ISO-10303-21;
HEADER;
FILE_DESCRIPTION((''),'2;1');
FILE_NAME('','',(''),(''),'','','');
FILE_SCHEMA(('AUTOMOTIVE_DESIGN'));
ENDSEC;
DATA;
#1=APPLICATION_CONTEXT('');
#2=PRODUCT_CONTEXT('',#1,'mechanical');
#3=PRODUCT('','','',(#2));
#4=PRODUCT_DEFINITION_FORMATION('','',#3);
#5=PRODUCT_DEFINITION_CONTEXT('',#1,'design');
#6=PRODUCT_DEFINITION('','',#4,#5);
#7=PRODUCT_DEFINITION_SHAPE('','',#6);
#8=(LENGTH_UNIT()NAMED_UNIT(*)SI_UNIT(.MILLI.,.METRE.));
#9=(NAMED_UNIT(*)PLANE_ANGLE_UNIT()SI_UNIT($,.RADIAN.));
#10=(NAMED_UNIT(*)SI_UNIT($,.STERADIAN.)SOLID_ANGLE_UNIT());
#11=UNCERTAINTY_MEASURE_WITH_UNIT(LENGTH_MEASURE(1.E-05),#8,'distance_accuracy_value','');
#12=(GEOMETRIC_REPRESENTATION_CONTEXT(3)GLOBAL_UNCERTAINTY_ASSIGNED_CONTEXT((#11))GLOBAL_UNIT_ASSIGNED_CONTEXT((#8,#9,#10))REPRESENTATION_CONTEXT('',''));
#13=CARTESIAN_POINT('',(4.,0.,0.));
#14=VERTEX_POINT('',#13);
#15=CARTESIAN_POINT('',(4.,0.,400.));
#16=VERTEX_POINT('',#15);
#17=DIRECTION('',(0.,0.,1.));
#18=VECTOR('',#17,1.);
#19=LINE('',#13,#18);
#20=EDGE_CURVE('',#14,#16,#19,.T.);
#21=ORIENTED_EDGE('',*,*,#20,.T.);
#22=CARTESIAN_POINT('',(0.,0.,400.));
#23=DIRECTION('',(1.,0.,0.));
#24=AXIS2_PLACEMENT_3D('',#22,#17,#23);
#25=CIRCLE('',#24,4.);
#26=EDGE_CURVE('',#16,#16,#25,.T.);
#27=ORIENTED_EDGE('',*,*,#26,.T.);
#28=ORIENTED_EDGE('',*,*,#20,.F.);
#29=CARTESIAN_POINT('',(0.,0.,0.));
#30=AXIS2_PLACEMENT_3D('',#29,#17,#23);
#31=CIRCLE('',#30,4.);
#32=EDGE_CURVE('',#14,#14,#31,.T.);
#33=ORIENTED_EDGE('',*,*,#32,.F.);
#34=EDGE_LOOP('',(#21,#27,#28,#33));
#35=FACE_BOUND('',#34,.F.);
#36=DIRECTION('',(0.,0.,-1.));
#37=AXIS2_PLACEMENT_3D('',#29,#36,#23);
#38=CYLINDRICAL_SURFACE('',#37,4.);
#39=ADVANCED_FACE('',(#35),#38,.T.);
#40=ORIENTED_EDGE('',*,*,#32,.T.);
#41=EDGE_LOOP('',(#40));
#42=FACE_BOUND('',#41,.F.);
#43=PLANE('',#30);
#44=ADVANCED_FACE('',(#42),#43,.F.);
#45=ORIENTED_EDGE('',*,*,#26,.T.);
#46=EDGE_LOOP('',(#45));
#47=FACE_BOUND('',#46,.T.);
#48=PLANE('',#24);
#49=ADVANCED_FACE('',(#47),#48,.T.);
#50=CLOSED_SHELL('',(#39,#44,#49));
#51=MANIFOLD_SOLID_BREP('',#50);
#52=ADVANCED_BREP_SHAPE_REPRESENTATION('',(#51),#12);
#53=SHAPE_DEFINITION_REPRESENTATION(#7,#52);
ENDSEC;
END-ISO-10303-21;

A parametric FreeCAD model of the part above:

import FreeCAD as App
import Part
import Sketcher

V = App.Vector
Q = App.Units.Quantity

doc = App.newDocument("Part")
body = doc.addObject("PartDesign::Body", "Body")

# Sketch on XY plane
sketch1 = body.newObject("Sketcher::SketchObject", "Sketch")
sketch1.AttachmentSupport = (doc.getObject("XY_Plane"), [""])
sketch1.MapMode = "FlatFace"
sketch1.addGeometry(Part.Circle(V(0, 0, 0), V(0, 0, 1), 4), False)
sketch1.addConstraint([
    Sketcher.Constraint("Coincident", 0, 3, -1, 1),
    Sketcher.Constraint("Diameter", 0, Q("8 mm")),
])
pad1 = body.newObject("PartDesign::Pad", "Pad")
pad1.Profile = sketch1
pad1.Length = 400

doc.recompute()
